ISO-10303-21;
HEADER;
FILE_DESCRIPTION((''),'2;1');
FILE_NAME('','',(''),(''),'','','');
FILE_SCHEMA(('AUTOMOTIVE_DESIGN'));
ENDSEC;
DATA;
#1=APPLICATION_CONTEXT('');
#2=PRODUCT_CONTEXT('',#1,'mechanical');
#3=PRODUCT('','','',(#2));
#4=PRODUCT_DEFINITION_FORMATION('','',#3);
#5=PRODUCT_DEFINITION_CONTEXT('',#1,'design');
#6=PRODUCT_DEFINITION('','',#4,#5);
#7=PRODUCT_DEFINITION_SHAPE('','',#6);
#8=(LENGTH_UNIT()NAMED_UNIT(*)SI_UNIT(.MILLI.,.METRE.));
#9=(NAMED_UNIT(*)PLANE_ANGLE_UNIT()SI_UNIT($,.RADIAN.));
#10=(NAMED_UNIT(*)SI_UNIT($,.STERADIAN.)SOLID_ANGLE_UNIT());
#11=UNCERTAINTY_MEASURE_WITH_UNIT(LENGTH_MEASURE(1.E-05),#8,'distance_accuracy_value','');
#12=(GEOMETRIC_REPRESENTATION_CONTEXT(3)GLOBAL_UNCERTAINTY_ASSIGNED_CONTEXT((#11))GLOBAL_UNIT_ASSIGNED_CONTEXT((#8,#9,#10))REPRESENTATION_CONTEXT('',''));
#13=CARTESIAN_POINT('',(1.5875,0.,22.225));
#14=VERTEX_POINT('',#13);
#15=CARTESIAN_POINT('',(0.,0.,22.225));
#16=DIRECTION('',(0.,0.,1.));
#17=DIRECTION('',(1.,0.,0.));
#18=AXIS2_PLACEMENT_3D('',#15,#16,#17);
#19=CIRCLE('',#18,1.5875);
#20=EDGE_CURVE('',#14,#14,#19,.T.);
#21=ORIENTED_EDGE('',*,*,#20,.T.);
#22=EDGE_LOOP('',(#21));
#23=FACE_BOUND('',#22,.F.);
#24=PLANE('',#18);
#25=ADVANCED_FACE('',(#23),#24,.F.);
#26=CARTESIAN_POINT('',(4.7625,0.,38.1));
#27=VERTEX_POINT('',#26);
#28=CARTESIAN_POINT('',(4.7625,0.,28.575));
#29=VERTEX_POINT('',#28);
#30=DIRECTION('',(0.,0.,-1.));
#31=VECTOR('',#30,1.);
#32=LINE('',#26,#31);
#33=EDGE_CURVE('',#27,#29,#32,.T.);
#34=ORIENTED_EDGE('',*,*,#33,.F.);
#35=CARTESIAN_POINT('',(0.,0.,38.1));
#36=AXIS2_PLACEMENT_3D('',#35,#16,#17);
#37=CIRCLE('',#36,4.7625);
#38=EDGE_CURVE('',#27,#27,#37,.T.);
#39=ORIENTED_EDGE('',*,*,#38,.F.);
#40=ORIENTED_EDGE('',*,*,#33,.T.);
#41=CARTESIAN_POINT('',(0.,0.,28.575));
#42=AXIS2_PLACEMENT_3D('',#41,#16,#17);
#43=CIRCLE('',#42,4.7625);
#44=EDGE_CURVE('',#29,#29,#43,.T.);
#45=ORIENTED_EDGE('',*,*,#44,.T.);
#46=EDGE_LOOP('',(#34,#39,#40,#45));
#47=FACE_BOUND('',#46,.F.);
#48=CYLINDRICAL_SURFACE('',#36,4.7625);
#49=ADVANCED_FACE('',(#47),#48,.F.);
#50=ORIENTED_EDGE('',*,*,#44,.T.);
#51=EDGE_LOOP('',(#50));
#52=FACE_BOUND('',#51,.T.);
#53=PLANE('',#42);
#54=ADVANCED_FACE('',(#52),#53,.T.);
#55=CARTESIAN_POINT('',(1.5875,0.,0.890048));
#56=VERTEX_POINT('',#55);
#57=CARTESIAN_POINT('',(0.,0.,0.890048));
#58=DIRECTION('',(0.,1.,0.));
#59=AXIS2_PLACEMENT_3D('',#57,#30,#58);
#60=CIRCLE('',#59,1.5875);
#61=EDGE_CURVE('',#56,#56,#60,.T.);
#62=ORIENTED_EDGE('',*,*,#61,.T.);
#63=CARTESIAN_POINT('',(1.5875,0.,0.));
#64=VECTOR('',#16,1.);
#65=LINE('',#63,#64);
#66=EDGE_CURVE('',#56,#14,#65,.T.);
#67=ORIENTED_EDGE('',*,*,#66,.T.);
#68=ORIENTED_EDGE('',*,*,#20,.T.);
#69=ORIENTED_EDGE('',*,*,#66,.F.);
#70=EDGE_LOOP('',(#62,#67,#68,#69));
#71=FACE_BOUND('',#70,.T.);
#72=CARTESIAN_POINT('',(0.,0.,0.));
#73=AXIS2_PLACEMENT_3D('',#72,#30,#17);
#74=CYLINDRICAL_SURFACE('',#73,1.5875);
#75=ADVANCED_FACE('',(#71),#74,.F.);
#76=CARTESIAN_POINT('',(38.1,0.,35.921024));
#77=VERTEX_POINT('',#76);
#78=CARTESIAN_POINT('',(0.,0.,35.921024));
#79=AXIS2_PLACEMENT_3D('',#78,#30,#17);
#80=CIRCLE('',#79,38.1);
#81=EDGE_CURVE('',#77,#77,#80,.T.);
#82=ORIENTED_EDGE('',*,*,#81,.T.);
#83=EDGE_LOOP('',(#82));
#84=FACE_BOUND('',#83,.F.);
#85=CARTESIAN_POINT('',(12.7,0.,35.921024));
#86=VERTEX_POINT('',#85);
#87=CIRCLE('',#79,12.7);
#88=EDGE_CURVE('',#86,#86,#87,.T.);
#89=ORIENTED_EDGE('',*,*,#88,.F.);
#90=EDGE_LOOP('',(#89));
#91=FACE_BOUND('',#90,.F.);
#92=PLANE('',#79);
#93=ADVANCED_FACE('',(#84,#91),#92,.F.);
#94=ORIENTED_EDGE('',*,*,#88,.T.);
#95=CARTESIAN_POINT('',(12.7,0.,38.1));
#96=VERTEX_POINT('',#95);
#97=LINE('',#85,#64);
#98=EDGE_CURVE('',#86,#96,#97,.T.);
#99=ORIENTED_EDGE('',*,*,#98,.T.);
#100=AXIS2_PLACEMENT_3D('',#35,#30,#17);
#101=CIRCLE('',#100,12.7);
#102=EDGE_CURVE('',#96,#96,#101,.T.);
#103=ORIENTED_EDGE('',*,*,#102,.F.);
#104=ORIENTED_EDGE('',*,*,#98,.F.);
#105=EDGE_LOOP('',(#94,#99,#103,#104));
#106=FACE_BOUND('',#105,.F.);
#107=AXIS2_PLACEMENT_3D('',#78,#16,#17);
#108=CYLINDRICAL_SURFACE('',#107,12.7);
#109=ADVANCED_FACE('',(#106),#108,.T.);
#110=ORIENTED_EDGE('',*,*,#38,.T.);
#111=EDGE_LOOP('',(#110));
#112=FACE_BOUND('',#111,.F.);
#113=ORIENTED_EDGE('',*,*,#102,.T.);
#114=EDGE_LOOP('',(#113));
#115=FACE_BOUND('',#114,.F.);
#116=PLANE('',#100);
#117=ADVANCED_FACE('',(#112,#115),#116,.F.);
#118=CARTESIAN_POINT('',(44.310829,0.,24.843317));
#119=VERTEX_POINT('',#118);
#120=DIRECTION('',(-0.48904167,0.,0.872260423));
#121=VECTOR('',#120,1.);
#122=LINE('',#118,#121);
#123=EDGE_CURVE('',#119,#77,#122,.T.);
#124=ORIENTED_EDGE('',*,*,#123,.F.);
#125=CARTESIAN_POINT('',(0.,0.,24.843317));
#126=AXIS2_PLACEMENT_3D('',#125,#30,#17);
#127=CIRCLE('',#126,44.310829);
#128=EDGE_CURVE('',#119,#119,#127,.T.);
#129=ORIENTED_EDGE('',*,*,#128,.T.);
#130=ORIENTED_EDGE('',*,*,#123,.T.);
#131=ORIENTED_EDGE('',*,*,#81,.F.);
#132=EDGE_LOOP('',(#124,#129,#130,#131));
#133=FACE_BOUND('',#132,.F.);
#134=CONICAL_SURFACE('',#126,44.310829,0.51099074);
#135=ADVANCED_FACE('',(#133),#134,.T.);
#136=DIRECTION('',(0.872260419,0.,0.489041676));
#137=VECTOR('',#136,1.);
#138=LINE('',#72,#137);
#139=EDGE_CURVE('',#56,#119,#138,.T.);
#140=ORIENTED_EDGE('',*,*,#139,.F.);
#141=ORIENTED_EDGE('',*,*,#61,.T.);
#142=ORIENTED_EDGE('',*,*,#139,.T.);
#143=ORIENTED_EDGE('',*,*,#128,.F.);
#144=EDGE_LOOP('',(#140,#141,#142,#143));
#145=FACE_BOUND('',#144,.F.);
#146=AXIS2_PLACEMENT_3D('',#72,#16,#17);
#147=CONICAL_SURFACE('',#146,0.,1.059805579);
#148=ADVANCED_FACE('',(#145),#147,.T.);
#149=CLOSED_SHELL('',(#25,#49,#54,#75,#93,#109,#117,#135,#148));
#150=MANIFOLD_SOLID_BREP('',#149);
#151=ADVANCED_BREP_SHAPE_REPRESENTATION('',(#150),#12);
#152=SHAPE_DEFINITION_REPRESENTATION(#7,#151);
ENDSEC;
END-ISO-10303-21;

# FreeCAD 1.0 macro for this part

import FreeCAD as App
import Part
import Sketcher

V = App.Vector
Q = App.Units.Quantity


def add_polygon(sketch, points):
    """Adds a closed chain of lines whose ends are joined by coincident constraints."""
    first, n = sketch.GeometryCount, len(points)
    for a, b in zip(points, points[1:] + points[:1]):
        sketch.addGeometry(Part.LineSegment(App.Vector(*a, 0), App.Vector(*b, 0)), False)
    for i in range(n):
        sketch.addConstraint(Sketcher.Constraint("Coincident", first + i, 2, first + (i + 1) % n, 1))

doc = App.newDocument("Part")
body = doc.addObject("PartDesign::Body", "Body")

sketch1 = body.newObject("Sketcher::SketchObject", "Sketch")
sketch1.AttachmentSupport = (doc.getObject("XZ_Plane"), [""])
sketch1.MapMode = "FlatFace"
add_polygon(sketch1, [(0, 38.1), (0, 0), (44.3, 24.8), (38.1, 35.9), (12.7, 35.9), (12.7, 38.1)])
sketch1.addConstraint([
    Sketcher.Constraint("Vertical", 0),
    Sketcher.Constraint("Horizontal", 3),
    Sketcher.Constraint("Vertical", 4),
    Sketcher.Constraint("Horizontal", 5),
    Sketcher.Constraint("Coincident", 0, 2, -1, 1),
    Sketcher.Constraint("Perpendicular", 1, 2),
    Sketcher.Constraint("DistanceX", 3, 2, 3, 1, Q("1 in")),
    Sketcher.Constraint("Distance", 1, Q("2 in")),
    Sketcher.Constraint("DistanceX", 5, 2, 5, 1, Q("0.5 in")),
    Sketcher.Constraint("DistanceY", 0, 2, 0, 1, Q("1.5 in")),
    Sketcher.Constraint("Distance", 2, Q("0.5 in")),
])
revolution = body.newObject("PartDesign::Revolution", "Revolution")
revolution.Profile = sketch1
revolution.ReferenceAxis = (sketch1, ["V_Axis"])
revolution.Angle = 360

sketch2 = body.newObject("Sketcher::SketchObject", "Sketch001")
sketch2.AttachmentSupport = (doc.getObject("XY_Plane"), [""])
sketch2.MapMode = "FlatFace"
sketch2.AttachmentOffset = App.Placement(V(0, 0, 1.5 * 25.4), App.Rotation())
sketch2.addGeometry(Part.Circle(V(0, 0, 0), V(0, 0, 1), 4.8), False)
sketch2.addConstraint([
    Sketcher.Constraint("Coincident", 0, 3, -1, 1),
    Sketcher.Constraint("Diameter", 0, Q("0.375 in")),
])
pocket1 = body.newObject("PartDesign::Pocket", "Pocket")
pocket1.Profile = sketch2
pocket1.Length = Q("0.375 in")

sketch3 = body.newObject("Sketcher::SketchObject", "Sketch002")
sketch3.AttachmentSupport = (doc.getObject("XY_Plane"), [""])
sketch3.MapMode = "FlatFace"
sketch3.addGeometry(Part.Circle(V(0, 0, 0), V(0, 0, 1), 1.6), False)
sketch3.addConstraint([
    Sketcher.Constraint("Coincident", 0, 3, -1, 1),
    Sketcher.Constraint("Diameter", 0, Q("0.125 in")),
])
pocket2 = body.newObject("PartDesign::Pocket", "Pocket001")
pocket2.Profile = sketch3
pocket2.Length = Q("0.875 in")
pocket2.Reversed = True

doc.recompute()
